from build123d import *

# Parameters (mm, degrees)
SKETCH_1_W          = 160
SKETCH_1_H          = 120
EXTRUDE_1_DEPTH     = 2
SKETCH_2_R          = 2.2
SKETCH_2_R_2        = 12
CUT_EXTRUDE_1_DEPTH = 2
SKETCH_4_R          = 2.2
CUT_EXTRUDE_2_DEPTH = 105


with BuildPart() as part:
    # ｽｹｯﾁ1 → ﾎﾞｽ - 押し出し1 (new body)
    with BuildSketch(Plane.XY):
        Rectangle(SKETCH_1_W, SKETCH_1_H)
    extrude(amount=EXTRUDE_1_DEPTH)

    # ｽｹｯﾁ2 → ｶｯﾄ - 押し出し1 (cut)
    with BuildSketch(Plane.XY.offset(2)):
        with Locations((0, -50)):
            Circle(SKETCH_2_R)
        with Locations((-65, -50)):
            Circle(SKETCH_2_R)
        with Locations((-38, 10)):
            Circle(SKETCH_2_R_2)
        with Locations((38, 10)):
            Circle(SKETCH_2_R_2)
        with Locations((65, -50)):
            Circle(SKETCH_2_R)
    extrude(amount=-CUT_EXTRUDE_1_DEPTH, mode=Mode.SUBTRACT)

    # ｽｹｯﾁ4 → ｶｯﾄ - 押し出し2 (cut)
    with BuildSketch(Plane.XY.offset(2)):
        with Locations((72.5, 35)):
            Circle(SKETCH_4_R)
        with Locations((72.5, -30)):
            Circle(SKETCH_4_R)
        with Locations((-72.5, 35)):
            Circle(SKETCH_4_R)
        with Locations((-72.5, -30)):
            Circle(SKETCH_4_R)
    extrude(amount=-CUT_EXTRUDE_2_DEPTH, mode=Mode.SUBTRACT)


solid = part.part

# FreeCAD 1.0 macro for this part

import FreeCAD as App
import Part
import Sketcher

V = App.Vector
Q = App.Units.Quantity

doc = App.newDocument("Part")
params = doc.addObject("Spreadsheet::Sheet", "Params")
for row, (alias, value) in enumerate([
    ("sketch1_width", "160 mm"),
    ("sketch1_height", "120 mm"),
    ("pad1_length", "2 mm"),
    ("sketch2_diameter", "24 mm"),
    ("sketch2_diameter2", "4.4 mm"),
    ("pocket1_length", "2 mm"),
    ("sketch3_diameter", "4.4 mm"),
    ("pocket2_length", "105 mm"),
], start=1):
    params.set(f"A{row}", alias)
    params.set(f"B{row}", "=" + value)
    params.setAlias(f"B{row}", alias)

body = doc.addObject("PartDesign::Body", "Body")

# Sketch on XY plane
sketch1 = doc.addObject("Sketcher::SketchObject", "Sketch")
body.addObject(sketch1)
sketch1.AttachmentSupport = (doc.XY_Plane, [""])
sketch1.MapMode = "FlatFace"
sketch1.addGeometry([
    Part.LineSegment(V(-80, 60, 0), V(-80, -60, 0)),
    Part.LineSegment(V(-80, -60, 0), V(80, -60, 0)),
    Part.LineSegment(V(80, -60, 0), V(80, 60, 0)),
    Part.LineSegment(V(80, 60, 0), V(-80, 60, 0)),
], False)
sketch1.addConstraint([
    Sketcher.Constraint("Coincident", 0, 2, 1, 1),
    Sketcher.Constraint("Coincident", 1, 2, 2, 1),
    Sketcher.Constraint("Coincident", 2, 2, 3, 1),
    Sketcher.Constraint("Coincident", 3, 2, 0, 1),
    Sketcher.Constraint("Vertical", 0),
    Sketcher.Constraint("Horizontal", 1),
    Sketcher.Constraint("Vertical", 2),
    Sketcher.Constraint("Horizontal", 3),
    Sketcher.Constraint("Symmetric", 0, 2, 2, 2, -1, 1),
    Sketcher.Constraint("DistanceX", 1, 1, 1, 2, Q("160 mm")),
    Sketcher.Constraint("DistanceY", 0, 2, 0, 1, Q("120 mm")),
])
sketch1.setExpression("Constraints[9]", "Params.sketch1_width")
sketch1.setExpression("Constraints[10]", "Params.sketch1_height")
pad1 = doc.addObject("PartDesign::Pad", "Pad")
body.addObject(pad1)
pad1.Profile = sketch1
pad1.setExpression("Length", "Params.pad1_length")

# Sketch on XY plane
sketch2 = doc.addObject("Sketcher::SketchObject", "Sketch001")
body.addObject(sketch2)
sketch2.AttachmentSupport = (doc.XY_Plane, [""])
sketch2.MapMode = "FlatFace"
sketch2.AttachmentOffset = App.Placement(V(0, 0, 2), App.Rotation())
sketch2.addGeometry([
    Part.Circle(V(0, -50, 0), V(0, 0, 1), 2.2),  # 0
    Part.Circle(V(-65, -50, 0), V(0, 0, 1), 2.2),  # 1
    Part.Circle(V(-38, 10, 0), V(0, 0, 1), 12),  # 2
    Part.Circle(V(38, 10, 0), V(0, 0, 1), 12),  # 3
    Part.Circle(V(65, -50, 0), V(0, 0, 1), 2.2),  # 4
], False)
sketch2.addConstraint([
    Sketcher.Constraint("Equal", 0, 1),
    Sketcher.Constraint("Equal", 2, 3),
    Sketcher.Constraint("Equal", 1, 4),
    Sketcher.Constraint("Symmetric", 2, 3, 3, 3, -2),
    Sketcher.Constraint("Symmetric", 1, 3, 4, 3, -2),
    Sketcher.Constraint("PointOnObject", 0, 3, -2),
    Sketcher.Constraint("Horizontal", 0, 3, 1, 3),
    Sketcher.Constraint("Diameter", 2, Q("24 mm")),
    Sketcher.Constraint("Diameter", 0, Q("4.4 mm")),
    Sketcher.Constraint("DistanceY", 0, 3, -1, 1, Q("50 mm")),
    Sketcher.Constraint("DistanceX", 1, 3, -1, 1, Q("65 mm")),
    Sketcher.Constraint("DistanceX", 2, 3, -1, 1, Q("38 mm")),
    Sketcher.Constraint("DistanceY", -1, 1, 2, 3, Q("10 mm")),
])
sketch2.setExpression("Constraints[7]", "Params.sketch2_diameter")
sketch2.setExpression("Constraints[8]", "Params.sketch2_diameter2")
pocket1 = doc.addObject("PartDesign::Pocket", "Pocket")
body.addObject(pocket1)
pocket1.Profile = sketch2
pocket1.setExpression("Length", "Params.pocket1_length")

# Sketch on XY plane
sketch3 = doc.addObject("Sketcher::SketchObject", "Sketch002")
body.addObject(sketch3)
sketch3.AttachmentSupport = (doc.XY_Plane, [""])
sketch3.MapMode = "FlatFace"
sketch3.AttachmentOffset = App.Placement(V(0, 0, 2), App.Rotation())
sketch3.addGeometry([
    Part.Circle(V(72.5, 35, 0), V(0, 0, 1), 2.2),
    Part.Circle(V(72.5, -30, 0), V(0, 0, 1), 2.2),
    Part.Circle(V(-72.5, 35, 0), V(0, 0, 1), 2.2),
    Part.Circle(V(-72.5, -30, 0), V(0, 0, 1), 2.2),
], False)
sketch3.addConstraint([
    Sketcher.Constraint("Equal", 0, 1),
    Sketcher.Constraint("Equal", 1, 2),
    Sketcher.Constraint("Equal", 2, 3),
    Sketcher.Constraint("Symmetric", 0, 3, 2, 3, -2),
    Sketcher.Constraint("Symmetric", 1, 3, 3, 3, -2),
    Sketcher.Constraint("Vertical", 0, 3, 1, 3),
    Sketcher.Constraint("Diameter", 0, Q("4.4 mm")),
    Sketcher.Constraint("DistanceY", -1, 1, 0, 3, Q("35 mm")),
    Sketcher.Constraint("DistanceY", 1, 3, -1, 1, Q("30 mm")),
    Sketcher.Constraint("DistanceX", 2, 3, 0, 3, Q("145 mm")),
])
sketch3.setExpression("Constraints[6]", "Params.sketch3_diameter")
pocket2 = doc.addObject("PartDesign::Pocket", "Pocket001")
body.addObject(pocket2)
pocket2.Profile = sketch3
pocket2.setExpression("Length", "Params.pocket2_length")

doc.recompute()
